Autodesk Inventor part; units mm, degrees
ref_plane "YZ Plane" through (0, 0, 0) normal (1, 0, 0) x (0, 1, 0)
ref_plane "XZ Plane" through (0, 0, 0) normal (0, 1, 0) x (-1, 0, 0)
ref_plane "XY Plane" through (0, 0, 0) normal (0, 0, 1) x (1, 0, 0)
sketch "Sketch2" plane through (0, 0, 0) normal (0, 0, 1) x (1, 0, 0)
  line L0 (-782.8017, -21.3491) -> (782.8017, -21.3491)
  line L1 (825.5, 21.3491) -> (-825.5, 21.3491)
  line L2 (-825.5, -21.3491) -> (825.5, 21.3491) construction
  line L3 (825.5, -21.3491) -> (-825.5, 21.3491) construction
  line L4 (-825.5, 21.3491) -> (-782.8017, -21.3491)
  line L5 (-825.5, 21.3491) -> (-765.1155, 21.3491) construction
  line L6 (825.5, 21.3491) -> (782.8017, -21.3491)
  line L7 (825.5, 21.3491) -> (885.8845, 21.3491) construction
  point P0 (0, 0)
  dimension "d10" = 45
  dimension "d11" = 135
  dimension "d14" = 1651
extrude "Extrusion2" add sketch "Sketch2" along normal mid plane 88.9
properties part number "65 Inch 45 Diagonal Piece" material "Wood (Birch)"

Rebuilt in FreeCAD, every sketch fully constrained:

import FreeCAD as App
import Part
import Sketcher
from FreeCAD import Vector
Q = App.Units.Quantity


def add_polygon(sketch, points):
    """Adds a closed chain of lines whose ends are joined by coincident constraints."""
    first, n = sketch.GeometryCount, len(points)
    for a, b in zip(points, points[1:] + points[:1]):
        sketch.addGeometry(Part.LineSegment(App.Vector(*a, 0), App.Vector(*b, 0)), False)
    for i in range(n):
        sketch.addConstraint(Sketcher.Constraint("Coincident", first + i, 2, first + (i + 1) % n, 1))

doc = App.newDocument("Part")
body = doc.addObject("PartDesign::Body", "Body")

sketch1 = body.newObject("Sketcher::SketchObject", "Sketch")
sketch1.AttachmentSupport = (doc.getObject("XY_Plane"), [""])
sketch1.MapMode = "FlatFace"
add_polygon(sketch1, [(-826, 21), (-783, -21), (783, -21), (826, 21)])
sketch1.addConstraint([
    Sketcher.Constraint("Horizontal", 1),
    Sketcher.Constraint("Horizontal", 3),
    Sketcher.Constraint("Perpendicular", 0, 2),
    Sketcher.Constraint("Equal", 0, 2),
    Sketcher.Constraint("DistanceX", 3, 2, 3, 1, Q("65 in")),
    Sketcher.Constraint("DistanceX", -1, 1, 2, 2, Q("32.5 in")),
    Sketcher.Constraint("DistanceX", 1, 1, 1, 2, 1565.6034),
    Sketcher.Constraint("DistanceY", 0, 2, -1, 1, Q("0.8405118 in")),
])
pad1 = body.newObject("PartDesign::Pad", "Pad")
pad1.Profile = sketch1
pad1.Length = Q("3.5 in")
pad1.Midplane = True

doc.recompute()
